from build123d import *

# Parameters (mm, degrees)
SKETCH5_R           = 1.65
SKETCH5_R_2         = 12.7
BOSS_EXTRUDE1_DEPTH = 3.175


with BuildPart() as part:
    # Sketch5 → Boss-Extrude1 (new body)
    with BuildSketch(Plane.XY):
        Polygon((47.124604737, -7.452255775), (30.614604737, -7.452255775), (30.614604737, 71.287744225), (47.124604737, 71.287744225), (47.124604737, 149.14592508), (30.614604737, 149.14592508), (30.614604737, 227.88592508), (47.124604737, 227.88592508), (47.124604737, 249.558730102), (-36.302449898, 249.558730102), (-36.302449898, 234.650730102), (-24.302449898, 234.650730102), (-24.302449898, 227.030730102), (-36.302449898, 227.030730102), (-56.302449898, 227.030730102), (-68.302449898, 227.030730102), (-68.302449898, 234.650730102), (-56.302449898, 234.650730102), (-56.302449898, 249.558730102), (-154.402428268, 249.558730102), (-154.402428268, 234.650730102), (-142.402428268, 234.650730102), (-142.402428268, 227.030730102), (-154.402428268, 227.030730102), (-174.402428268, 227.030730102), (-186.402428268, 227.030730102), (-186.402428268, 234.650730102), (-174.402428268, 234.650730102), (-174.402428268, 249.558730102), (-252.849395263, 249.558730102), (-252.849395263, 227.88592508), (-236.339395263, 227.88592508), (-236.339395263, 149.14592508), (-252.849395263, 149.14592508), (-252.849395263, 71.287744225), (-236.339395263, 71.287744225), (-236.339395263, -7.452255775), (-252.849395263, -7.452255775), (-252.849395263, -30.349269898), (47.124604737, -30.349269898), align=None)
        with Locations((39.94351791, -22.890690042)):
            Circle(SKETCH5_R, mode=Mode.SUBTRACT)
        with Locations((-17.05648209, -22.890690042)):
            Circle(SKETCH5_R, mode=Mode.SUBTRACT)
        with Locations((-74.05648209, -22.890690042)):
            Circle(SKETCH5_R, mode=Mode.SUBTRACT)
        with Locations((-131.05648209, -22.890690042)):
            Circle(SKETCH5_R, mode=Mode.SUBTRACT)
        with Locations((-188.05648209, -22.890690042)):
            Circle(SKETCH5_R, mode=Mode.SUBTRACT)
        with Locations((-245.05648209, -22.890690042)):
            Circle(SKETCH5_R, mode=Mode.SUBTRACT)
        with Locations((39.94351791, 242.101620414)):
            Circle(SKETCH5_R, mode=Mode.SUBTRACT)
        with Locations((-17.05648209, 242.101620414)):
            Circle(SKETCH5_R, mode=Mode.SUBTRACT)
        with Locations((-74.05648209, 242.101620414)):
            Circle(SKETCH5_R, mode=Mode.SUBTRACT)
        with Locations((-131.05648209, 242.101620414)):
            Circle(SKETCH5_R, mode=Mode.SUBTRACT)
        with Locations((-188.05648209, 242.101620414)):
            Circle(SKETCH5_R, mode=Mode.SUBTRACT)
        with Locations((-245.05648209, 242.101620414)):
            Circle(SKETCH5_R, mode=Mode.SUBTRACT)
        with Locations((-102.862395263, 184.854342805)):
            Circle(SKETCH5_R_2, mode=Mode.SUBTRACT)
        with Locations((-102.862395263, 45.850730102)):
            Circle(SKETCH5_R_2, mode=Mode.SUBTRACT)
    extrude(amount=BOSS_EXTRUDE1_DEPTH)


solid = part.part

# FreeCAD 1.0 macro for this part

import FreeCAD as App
import Part
import Sketcher
Q = App.Units.Quantity

doc = App.newDocument("Part")
body = doc.addObject("PartDesign::Body", "Body")

sketch1 = body.newObject("Sketcher::SketchObject", "Sketch")
sketch1.AttachmentSupport = (doc.getObject("XY_Plane"), [""])
sketch1.MapMode = "FlatFace"
sketch1.addGeometry(Part.LineSegment(App.Vector(47.1, -7.5, 0), App.Vector(30.6, -7.5, 0)), False)
sketch1.addGeometry(Part.LineSegment(App.Vector(30.6, -7.5, 0), App.Vector(30.6, 71.3, 0)), False)
sketch1.addGeometry(Part.LineSegment(App.Vector(30.6, 71.3, 0), App.Vector(47.1, 71.3, 0)), False)
sketch1.addGeometry(Part.LineSegment(App.Vector(47.1, 71.3, 0), App.Vector(47.1, 149.1, 0)), False)
sketch1.addGeometry(Part.LineSegment(App.Vector(47.1, 149.1, 0), App.Vector(30.6, 149.1, 0)), False)
sketch1.addGeometry(Part.LineSegment(App.Vector(30.6, 149.1, 0), App.Vector(30.6, 227.9, 0)), False)
sketch1.addGeometry(Part.LineSegment(App.Vector(30.6, 227.9, 0), App.Vector(47.1, 227.9, 0)), False)
sketch1.addGeometry(Part.LineSegment(App.Vector(47.1, 227.9, 0), App.Vector(47.1, 249.6, 0)), False)
sketch1.addGeometry(Part.LineSegment(App.Vector(47.1, 249.6, 0), App.Vector(-36.3, 249.6, 0)), False)
sketch1.addGeometry(Part.LineSegment(App.Vector(-36.3, 249.6, 0), App.Vector(-36.3, 234.7, 0)), False)
sketch1.addGeometry(Part.LineSegment(App.Vector(-36.3, 234.7, 0), App.Vector(-24.3, 234.7, 0)), False)
sketch1.addGeometry(Part.LineSegment(App.Vector(-24.3, 234.7, 0), App.Vector(-24.3, 227, 0)), False)
sketch1.addGeometry(Part.LineSegment(App.Vector(-24.3, 227, 0), App.Vector(-68.3, 227, 0)), False)
sketch1.addGeometry(Part.LineSegment(App.Vector(-68.3, 227, 0), App.Vector(-68.3, 234.7, 0)), False)
sketch1.addGeometry(Part.LineSegment(App.Vector(-68.3, 234.7, 0), App.Vector(-56.3, 234.7, 0)), False)
sketch1.addGeometry(Part.LineSegment(App.Vector(-56.3, 234.7, 0), App.Vector(-56.3, 249.6, 0)), False)
sketch1.addGeometry(Part.LineSegment(App.Vector(-56.3, 249.6, 0), App.Vector(-154.4, 249.6, 0)), False)
sketch1.addGeometry(Part.LineSegment(App.Vector(-154.4, 249.6, 0), App.Vector(-154.4, 234.7, 0)), False)
sketch1.addGeometry(Part.LineSegment(App.Vector(-154.4, 234.7, 0), App.Vector(-142.4, 234.7, 0)), False)
sketch1.addGeometry(Part.LineSegment(App.Vector(-142.4, 234.7, 0), App.Vector(-142.4, 227, 0)), False)
sketch1.addGeometry(Part.LineSegment(App.Vector(-142.4, 227, 0), App.Vector(-186.4, 227, 0)), False)
sketch1.addGeometry(Part.LineSegment(App.Vector(-186.4, 227, 0), App.Vector(-186.4, 234.7, 0)), False)
sketch1.addGeometry(Part.LineSegment(App.Vector(-186.4, 234.7, 0), App.Vector(-174.4, 234.7, 0)), False)
sketch1.addGeometry(Part.LineSegment(App.Vector(-174.4, 234.7, 0), App.Vector(-174.4, 249.6, 0)), False)
sketch1.addGeometry(Part.LineSegment(App.Vector(-174.4, 249.6, 0), App.Vector(-252.8, 249.6, 0)), False)
sketch1.addGeometry(Part.LineSegment(App.Vector(-252.8, 249.6, 0), App.Vector(-252.8, 227.9, 0)), False)
sketch1.addGeometry(Part.LineSegment(App.Vector(-252.8, 227.9, 0), App.Vector(-236.3, 227.9, 0)), False)
sketch1.addGeometry(Part.LineSegment(App.Vector(-236.3, 227.9, 0), App.Vector(-236.3, 149.1, 0)), False)
sketch1.addGeometry(Part.LineSegment(App.Vector(-236.3, 149.1, 0), App.Vector(-252.8, 149.1, 0)), False)
sketch1.addGeometry(Part.LineSegment(App.Vector(-252.8, 149.1, 0), App.Vector(-252.8, 71.3, 0)), False)
sketch1.addGeometry(Part.LineSegment(App.Vector(-252.8, 71.3, 0), App.Vector(-236.3, 71.3, 0)), False)
sketch1.addGeometry(Part.LineSegment(App.Vector(-236.3, 71.3, 0), App.Vector(-236.3, -7.5, 0)), False)
sketch1.addGeometry(Part.LineSegment(App.Vector(-236.3, -7.5, 0), App.Vector(-252.8, -7.5, 0)), False)
sketch1.addGeometry(Part.LineSegment(App.Vector(-252.8, -7.5, 0), App.Vector(-252.8, -30.3, 0)), False)
sketch1.addGeometry(Part.LineSegment(App.Vector(-252.8, -30.3, 0), App.Vector(47.1, -30.3, 0)), False)
sketch1.addGeometry(Part.LineSegment(App.Vector(47.1, -30.3, 0), App.Vector(47.1, -7.5, 0)), False)
sketch1.addGeometry(Part.Circle(App.Vector(-245.1, -22.9, 0), App.Vector(0, 0, 1), 1.6), False)
sketch1.addGeometry(Part.Circle(App.Vector(-188.1, -22.9, 0), App.Vector(0, 0, 1), 1.6), False)
sketch1.addGeometry(Part.Circle(App.Vector(-131.1, -22.9, 0), App.Vector(0, 0, 1), 1.6), False)
sketch1.addGeometry(Part.Circle(App.Vector(-102.9, 45.9, 0), App.Vector(0, 0, 1), 12.7), False)
sketch1.addGeometry(Part.Circle(App.Vector(-74.1, -22.9, 0), App.Vector(0, 0, 1), 1.6), False)
sketch1.addGeometry(Part.Circle(App.Vector(-17.1, -22.9, 0), App.Vector(0, 0, 1), 1.6), False)
sketch1.addGeometry(Part.Circle(App.Vector(39.9, -22.9, 0), App.Vector(0, 0, 1), 1.6), False)
sketch1.addGeometry(Part.Circle(App.Vector(-245.1, 242.1, 0), App.Vector(0, 0, 1), 1.6), False)
sketch1.addGeometry(Part.Circle(App.Vector(-188.1, 242.1, 0), App.Vector(0, 0, 1), 1.6), False)
sketch1.addGeometry(Part.Circle(App.Vector(-102.9, 184.9, 0), App.Vector(0, 0, 1), 12.7), False)
sketch1.addGeometry(Part.Circle(App.Vector(-131.1, 242.1, 0), App.Vector(0, 0, 1), 1.6), False)
sketch1.addGeometry(Part.Circle(App.Vector(-74.1, 242.1, 0), App.Vector(0, 0, 1), 1.6), False)
sketch1.addGeometry(Part.Circle(App.Vector(-17.1, 242.1, 0), App.Vector(0, 0, 1), 1.6), False)
sketch1.addGeometry(Part.Circle(App.Vector(39.9, 242.1, 0), App.Vector(0, 0, 1), 1.6), False)
sketch1.addConstraint(Sketcher.Constraint("Coincident", 0, 2, 1, 1))
sketch1.addConstraint(Sketcher.Constraint("Coincident", 1, 2, 2, 1))
sketch1.addConstraint(Sketcher.Constraint("Coincident", 2, 2, 3, 1))
sketch1.addConstraint(Sketcher.Constraint("Coincident", 3, 2, 4, 1))
sketch1.addConstraint(Sketcher.Constraint("Coincident", 4, 2, 5, 1))
sketch1.addConstraint(Sketcher.Constraint("Coincident", 5, 2, 6, 1))
sketch1.addConstraint(Sketcher.Constraint("Coincident", 6, 2, 7, 1))
sketch1.addConstraint(Sketcher.Constraint("Coincident", 7, 2, 8, 1))
sketch1.addConstraint(Sketcher.Constraint("Coincident", 8, 2, 9, 1))
sketch1.addConstraint(Sketcher.Constraint("Coincident", 9, 2, 10, 1))
sketch1.addConstraint(Sketcher.Constraint("Coincident", 10, 2, 11, 1))
sketch1.addConstraint(Sketcher.Constraint("Coincident", 11, 2, 12, 1))
sketch1.addConstraint(Sketcher.Constraint("Coincident", 12, 2, 13, 1))
sketch1.addConstraint(Sketcher.Constraint("Coincident", 13, 2, 14, 1))
sketch1.addConstraint(Sketcher.Constraint("Coincident", 14, 2, 15, 1))
sketch1.addConstraint(Sketcher.Constraint("Coincident", 15, 2, 16, 1))
sketch1.addConstraint(Sketcher.Constraint("Coincident", 16, 2, 17, 1))
sketch1.addConstraint(Sketcher.Constraint("Coincident", 17, 2, 18, 1))
sketch1.addConstraint(Sketcher.Constraint("Coincident", 18, 2, 19, 1))
sketch1.addConstraint(Sketcher.Constraint("Coincident", 19, 2, 20, 1))
sketch1.addConstraint(Sketcher.Constraint("Coincident", 20, 2, 21, 1))
sketch1.addConstraint(Sketcher.Constraint("Coincident", 21, 2, 22, 1))
sketch1.addConstraint(Sketcher.Constraint("Coincident", 22, 2, 23, 1))
sketch1.addConstraint(Sketcher.Constraint("Coincident", 23, 2, 24, 1))
sketch1.addConstraint(Sketcher.Constraint("Coincident", 24, 2, 25, 1))
sketch1.addConstraint(Sketcher.Constraint("Coincident", 25, 2, 26, 1))
sketch1.addConstraint(Sketcher.Constraint("Coincident", 26, 2, 27, 1))
sketch1.addConstraint(Sketcher.Constraint("Coincident", 27, 2, 28, 1))
sketch1.addConstraint(Sketcher.Constraint("Coincident", 28, 2, 29, 1))
sketch1.addConstraint(Sketcher.Constraint("Coincident", 29, 2, 30, 1))
sketch1.addConstraint(Sketcher.Constraint("Coincident", 30, 2, 31, 1))
sketch1.addConstraint(Sketcher.Constraint("Coincident", 31, 2, 32, 1))
sketch1.addConstraint(Sketcher.Constraint("Coincident", 32, 2, 33, 1))
sketch1.addConstraint(Sketcher.Constraint("Coincident", 33, 2, 34, 1))
sketch1.addConstraint(Sketcher.Constraint("Coincident", 34, 2, 35, 1))
sketch1.addConstraint(Sketcher.Constraint("Coincident", 35, 2, 0, 1))
sketch1.addConstraint(Sketcher.Constraint("Horizontal", 0))
sketch1.addConstraint(Sketcher.Constraint("Vertical", 1))
sketch1.addConstraint(Sketcher.Constraint("Horizontal", 2))
sketch1.addConstraint(Sketcher.Constraint("Vertical", 3))
sketch1.addConstraint(Sketcher.Constraint("Horizontal", 4))
sketch1.addConstraint(Sketcher.Constraint("Vertical", 5))
sketch1.addConstraint(Sketcher.Constraint("Horizontal", 6))
sketch1.addConstraint(Sketcher.Constraint("Vertical", 7))
sketch1.addConstraint(Sketcher.Constraint("Horizontal", 8))
sketch1.addConstraint(Sketcher.Constraint("Vertical", 9))
sketch1.addConstraint(Sketcher.Constraint("Horizontal", 10))
sketch1.addConstraint(Sketcher.Constraint("Vertical", 11))
sketch1.addConstraint(Sketcher.Constraint("Horizontal", 12))
sketch1.addConstraint(Sketcher.Constraint("Vertical", 13))
sketch1.addConstraint(Sketcher.Constraint("Horizontal", 14))
sketch1.addConstraint(Sketcher.Constraint("Vertical", 15))
sketch1.addConstraint(Sketcher.Constraint("Horizontal", 16))
sketch1.addConstraint(Sketcher.Constraint("Vertical", 17))
sketch1.addConstraint(Sketcher.Constraint("Horizontal", 18))
sketch1.addConstraint(Sketcher.Constraint("Vertical", 19))
sketch1.addConstraint(Sketcher.Constraint("Horizontal", 20))
sketch1.addConstraint(Sketcher.Constraint("Vertical", 21))
sketch1.addConstraint(Sketcher.Constraint("Horizontal", 22))
sketch1.addConstraint(Sketcher.Constraint("Vertical", 23))
sketch1.addConstraint(Sketcher.Constraint("Horizontal", 24))
sketch1.addConstraint(Sketcher.Constraint("Vertical", 25))
sketch1.addConstraint(Sketcher.Constraint("Horizontal", 26))
sketch1.addConstraint(Sketcher.Constraint("Vertical", 27))
sketch1.addConstraint(Sketcher.Constraint("Horizontal", 28))
sketch1.addConstraint(Sketcher.Constraint("Vertical", 29))
sketch1.addConstraint(Sketcher.Constraint("Horizontal", 30))
sketch1.addConstraint(Sketcher.Constraint("Vertical", 31))
sketch1.addConstraint(Sketcher.Constraint("Horizontal", 32))
sketch1.addConstraint(Sketcher.Constraint("Vertical", 33))
sketch1.addConstraint(Sketcher.Constraint("Horizontal", 34))
sketch1.addConstraint(Sketcher.Constraint("Vertical", 35))
sketch1.addConstraint(Sketcher.Constraint("Equal", 36, 37))
sketch1.addConstraint(Sketcher.Constraint("Equal", 37, 38))
sketch1.addConstraint(Sketcher.Constraint("Equal", 38, 40))
sketch1.addConstraint(Sketcher.Constraint("Equal", 40, 41))
sketch1.addConstraint(Sketcher.Constraint("Equal", 41, 42))
sketch1.addConstraint(Sketcher.Constraint("Equal", 42, 43))
sketch1.addConstraint(Sketcher.Constraint("Equal", 43, 44))
sketch1.addConstraint(Sketcher.Constraint("Equal", 39, 45))
sketch1.addConstraint(Sketcher.Constraint("Equal", 44, 46))
sketch1.addConstraint(Sketcher.Constraint("Equal", 46, 47))
sketch1.addConstraint(Sketcher.Constraint("Equal", 47, 48))
sketch1.addConstraint(Sketcher.Constraint("Equal", 48, 49))
sketch1.addConstraint(Sketcher.Constraint("Horizontal", 36, 3, 37, 3))
sketch1.addConstraint(Sketcher.Constraint("Horizontal", 37, 3, 38, 3))
sketch1.addConstraint(Sketcher.Constraint("Horizontal", 38, 3, 40, 3))
sketch1.addConstraint(Sketcher.Constraint("Horizontal", 40, 3, 41, 3))
sketch1.addConstraint(Sketcher.Constraint("Horizontal", 41, 3, 42, 3))
sketch1.addConstraint(Sketcher.Constraint("Horizontal", 43, 3, 44, 3))
sketch1.addConstraint(Sketcher.Constraint("Horizontal", 44, 3, 46, 3))
sketch1.addConstraint(Sketcher.Constraint("Horizontal", 46, 3, 47, 3))
sketch1.addConstraint(Sketcher.Constraint("Horizontal", 47, 3, 48, 3))
sketch1.addConstraint(Sketcher.Constraint("Horizontal", 48, 3, 49, 3))
sketch1.addConstraint(Sketcher.Constraint("Horizontal", 10, 2, 13, 2))
sketch1.addConstraint(Sketcher.Constraint("Horizontal", 8, 2, 15, 2))
sketch1.addConstraint(Sketcher.Constraint("Horizontal", 14, 2, 17, 2))
sketch1.addConstraint(Sketcher.Constraint("Horizontal", 12, 2, 19, 2))
sketch1.addConstraint(Sketcher.Constraint("Horizontal", 18, 2, 21, 2))
sketch1.addConstraint(Sketcher.Constraint("Horizontal", 16, 2, 23, 2))
sketch1.addConstraint(Sketcher.Constraint("Horizontal", 6, 2, 25, 2))
sketch1.addConstraint(Sketcher.Constraint("Horizontal", 4, 2, 27, 2))
sketch1.addConstraint(Sketcher.Constraint("Horizontal", 2, 2, 29, 2))
sketch1.addConstraint(Sketcher.Constraint("Horizontal", 0, 2, 31, 2))
sketch1.addConstraint(Sketcher.Constraint("Vertical", 36, 3, 43, 3))
sketch1.addConstraint(Sketcher.Constraint("Vertical", 37, 3, 44, 3))
sketch1.addConstraint(Sketcher.Constraint("Vertical", 39, 3, 45, 3))
sketch1.addConstraint(Sketcher.Constraint("Vertical", 38, 3, 46, 3))
sketch1.addConstraint(Sketcher.Constraint("Vertical", 40, 3, 47, 3))
sketch1.addConstraint(Sketcher.Constraint("Vertical", 41, 3, 48, 3))
sketch1.addConstraint(Sketcher.Constraint("Vertical", 42, 3, 49, 3))
sketch1.addConstraint(Sketcher.Constraint("Vertical", 1, 2, 4, 2))
sketch1.addConstraint(Sketcher.Constraint("Vertical", 3, 2, 6, 2))
sketch1.addConstraint(Sketcher.Constraint("Vertical", 25, 2, 28, 2))
sketch1.addConstraint(Sketcher.Constraint("Vertical", 27, 2, 30, 2))
sketch1.addConstraint(Sketcher.Constraint("Vertical", 29, 2, 32, 2))
sketch1.addConstraint(Sketcher.Constraint("Vertical", 7, 2, 34, 2))
sketch1.addConstraint(Sketcher.Constraint("Equal", 10, 14))
sketch1.addConstraint(Sketcher.Constraint("Equal", 14, 18))
sketch1.addConstraint(Sketcher.Constraint("Equal", 12, 20))
sketch1.addConstraint(Sketcher.Constraint("Equal", 18, 22))
sketch1.addConstraint(Sketcher.Constraint("Equal", 6, 26))
sketch1.addConstraint(Sketcher.Constraint("Equal", 1, 5))
sketch1.addConstraint(Sketcher.Constraint("Diameter", 39, Q("1 in")))
sketch1.addConstraint(Sketcher.Constraint("DistanceY", 1, 1, 1, 2, Q("3.1 in")))
sketch1.addConstraint(Sketcher.Constraint("DistanceY", 11, 2, 11, 1, Q("0.3 in")))
sketch1.addConstraint(Sketcher.Constraint("DistanceX", 0, 2, 0, 1, Q("0.65 in")))
sketch1.addConstraint(Sketcher.Constraint("DistanceX", 34, 1, 34, 2, Q("11.81 in")))
sketch1.addConstraint(Sketcher.Constraint("Diameter", 36, 3.3))
sketch1.addConstraint(Sketcher.Constraint("DistanceX", 39, 3, 0, 2, Q("5.255 in")))
sketch1.addConstraint(Sketcher.Constraint("DistanceX", 10, 1, 10, 2, 12.0))
sketch1.addConstraint(Sketcher.Constraint("DistanceX", 12, 2, 12, 1, 44.0))
sketch1.addConstraint(Sketcher.Constraint("DistanceY", 9, 2, 9, 1, 14.908))
sketch1.addConstraint(Sketcher.Constraint("DistanceX", 16, 2, 16, 1, 98.099978))
sketch1.addConstraint(Sketcher.Constraint("DistanceY", 3, 1, 3, 2, 77.858181))
sketch1.addConstraint(Sketcher.Constraint("DistanceX", 36, 3, 37, 3, 57.0))
sketch1.addConstraint(Sketcher.Constraint("DistanceX", 37, 3, 38, 3, 57.0))
sketch1.addConstraint(Sketcher.Constraint("DistanceX", 38, 3, 40, 3, 57.0))
sketch1.addConstraint(Sketcher.Constraint("DistanceX", 40, 3, 41, 3, 57.0))
sketch1.addConstraint(Sketcher.Constraint("DistanceX", 41, 3, 42, 3, 57.0))
sketch1.addConstraint(Sketcher.Constraint("DistanceX", 8, 2, 8, 1, 83.427055))
sketch1.addConstraint(Sketcher.Constraint("DistanceY", 7, 1, 7, 2, 21.672805))
sketch1.addConstraint(Sketcher.Constraint("DistanceY", 33, 2, 33, 1, 22.897014))
sketch1.addConstraint(Sketcher.Constraint("DistanceY", 36, 3, -1, 1, 22.89069))
sketch1.addConstraint(Sketcher.Constraint("DistanceY", -1, 1, 39, 3, 45.85073))
sketch1.addConstraint(Sketcher.Constraint("DistanceY", -1, 1, 43, 3, 242.10162))
sketch1.addConstraint(Sketcher.Constraint("DistanceY", -1, 1, 7, 2, 249.55873))
sketch1.addConstraint(Sketcher.Constraint("DistanceX", 8, 2, -1, 1, 36.30245))
sketch1.addConstraint(Sketcher.Constraint("DistanceX", 36, 3, -1, 1, 245.056482))
sketch1.addConstraint(Sketcher.Constraint("DistanceY", -1, 1, 45, 3, 184.854343))
pad1 = body.newObject("PartDesign::Pad", "Pad")
pad1.Profile = sketch1
pad1.Length = Q("0.125 in")

doc.recompute()
